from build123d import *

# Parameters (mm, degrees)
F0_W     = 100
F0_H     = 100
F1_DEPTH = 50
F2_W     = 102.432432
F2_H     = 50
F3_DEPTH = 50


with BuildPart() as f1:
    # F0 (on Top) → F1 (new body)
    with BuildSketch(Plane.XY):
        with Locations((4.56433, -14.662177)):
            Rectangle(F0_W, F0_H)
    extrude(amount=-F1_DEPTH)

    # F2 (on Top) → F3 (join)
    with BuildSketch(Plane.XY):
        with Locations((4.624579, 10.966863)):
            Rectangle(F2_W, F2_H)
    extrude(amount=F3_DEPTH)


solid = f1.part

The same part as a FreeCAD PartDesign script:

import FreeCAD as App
import Part
import Sketcher


def add_polygon(sketch, points):
    """Adds a closed chain of lines whose ends are joined by coincident constraints."""
    first, n = sketch.GeometryCount, len(points)
    for a, b in zip(points, points[1:] + points[:1]):
        sketch.addGeometry(Part.LineSegment(App.Vector(*a, 0), App.Vector(*b, 0)), False)
    for i in range(n):
        sketch.addConstraint(Sketcher.Constraint("Coincident", first + i, 2, first + (i + 1) % n, 1))

doc = App.newDocument("Part")
params = doc.addObject("Spreadsheet::Sheet", "Params")
for row, (alias, value) in enumerate([
    ("sketch1_width", "100 mm"),
    ("pad1_length", "50 mm"),
    ("sketch2_height", "50 mm"),
    ("pad2_length", "50 mm"),
], start=1):
    params.set(f"A{row}", alias)
    params.set(f"B{row}", "=" + value)
    params.setAlias(f"B{row}", alias)

body = doc.addObject("PartDesign::Body", "Body")

sketch1 = body.newObject("Sketcher::SketchObject", "Sketch")
sketch1.AttachmentSupport = (doc.getObject("XY_Plane"), [""])
sketch1.MapMode = "FlatFace"
add_polygon(sketch1, [(-45, 35), (-45, -65), (55, -65), (55, 35)])
sketch1.addConstraint([
    Sketcher.Constraint("Vertical", 0),
    Sketcher.Constraint("Horizontal", 1),
    Sketcher.Constraint("Vertical", 2),
    Sketcher.Constraint("Horizontal", 3),
    Sketcher.Constraint("Equal", 3, 0),
    Sketcher.Constraint("DistanceX", 1, 1, 1, 2, 100.0),
    Sketcher.Constraint("DistanceX", 0, 2, -1, 1, 45.43567),
    Sketcher.Constraint("DistanceY", 0, 2, -1, 1, 64.662177),
])
sketch1.setExpression("Constraints[9]", "Params.sketch1_width")
pad1 = body.newObject("PartDesign::Pad", "Pad")
pad1.Profile = sketch1
pad1.setExpression("Length", "Params.pad1_length")
pad1.Reversed = True

sketch2 = body.newObject("Sketcher::SketchObject", "Sketch001")
sketch2.AttachmentSupport = (doc.getObject("XY_Plane"), [""])
sketch2.MapMode = "FlatFace"
add_polygon(sketch2, [(-47, 36), (-47, -14), (56, -14), (56, 36)])
sketch2.addConstraint([
    Sketcher.Constraint("Vertical", 0),
    Sketcher.Constraint("Horizontal", 1),
    Sketcher.Constraint("Vertical", 2),
    Sketcher.Constraint("Horizontal", 3),
    Sketcher.Constraint("DistanceY", 0, 2, 0, 1, 50.0),
    Sketcher.Constraint("DistanceX", 1, 1, 1, 2, 102.432432),
    Sketcher.Constraint("DistanceX", 0, 2, -1, 1, 46.591637),
    Sketcher.Constraint("DistanceY", 0, 2, -1, 1, 14.033137),
])
sketch2.setExpression("Constraints[8]", "Params.sketch2_height")
pad2 = body.newObject("PartDesign::Pad", "Pad001")
pad2.Profile = sketch2
pad2.setExpression("Length", "Params.pad2_length")

doc.recompute()
